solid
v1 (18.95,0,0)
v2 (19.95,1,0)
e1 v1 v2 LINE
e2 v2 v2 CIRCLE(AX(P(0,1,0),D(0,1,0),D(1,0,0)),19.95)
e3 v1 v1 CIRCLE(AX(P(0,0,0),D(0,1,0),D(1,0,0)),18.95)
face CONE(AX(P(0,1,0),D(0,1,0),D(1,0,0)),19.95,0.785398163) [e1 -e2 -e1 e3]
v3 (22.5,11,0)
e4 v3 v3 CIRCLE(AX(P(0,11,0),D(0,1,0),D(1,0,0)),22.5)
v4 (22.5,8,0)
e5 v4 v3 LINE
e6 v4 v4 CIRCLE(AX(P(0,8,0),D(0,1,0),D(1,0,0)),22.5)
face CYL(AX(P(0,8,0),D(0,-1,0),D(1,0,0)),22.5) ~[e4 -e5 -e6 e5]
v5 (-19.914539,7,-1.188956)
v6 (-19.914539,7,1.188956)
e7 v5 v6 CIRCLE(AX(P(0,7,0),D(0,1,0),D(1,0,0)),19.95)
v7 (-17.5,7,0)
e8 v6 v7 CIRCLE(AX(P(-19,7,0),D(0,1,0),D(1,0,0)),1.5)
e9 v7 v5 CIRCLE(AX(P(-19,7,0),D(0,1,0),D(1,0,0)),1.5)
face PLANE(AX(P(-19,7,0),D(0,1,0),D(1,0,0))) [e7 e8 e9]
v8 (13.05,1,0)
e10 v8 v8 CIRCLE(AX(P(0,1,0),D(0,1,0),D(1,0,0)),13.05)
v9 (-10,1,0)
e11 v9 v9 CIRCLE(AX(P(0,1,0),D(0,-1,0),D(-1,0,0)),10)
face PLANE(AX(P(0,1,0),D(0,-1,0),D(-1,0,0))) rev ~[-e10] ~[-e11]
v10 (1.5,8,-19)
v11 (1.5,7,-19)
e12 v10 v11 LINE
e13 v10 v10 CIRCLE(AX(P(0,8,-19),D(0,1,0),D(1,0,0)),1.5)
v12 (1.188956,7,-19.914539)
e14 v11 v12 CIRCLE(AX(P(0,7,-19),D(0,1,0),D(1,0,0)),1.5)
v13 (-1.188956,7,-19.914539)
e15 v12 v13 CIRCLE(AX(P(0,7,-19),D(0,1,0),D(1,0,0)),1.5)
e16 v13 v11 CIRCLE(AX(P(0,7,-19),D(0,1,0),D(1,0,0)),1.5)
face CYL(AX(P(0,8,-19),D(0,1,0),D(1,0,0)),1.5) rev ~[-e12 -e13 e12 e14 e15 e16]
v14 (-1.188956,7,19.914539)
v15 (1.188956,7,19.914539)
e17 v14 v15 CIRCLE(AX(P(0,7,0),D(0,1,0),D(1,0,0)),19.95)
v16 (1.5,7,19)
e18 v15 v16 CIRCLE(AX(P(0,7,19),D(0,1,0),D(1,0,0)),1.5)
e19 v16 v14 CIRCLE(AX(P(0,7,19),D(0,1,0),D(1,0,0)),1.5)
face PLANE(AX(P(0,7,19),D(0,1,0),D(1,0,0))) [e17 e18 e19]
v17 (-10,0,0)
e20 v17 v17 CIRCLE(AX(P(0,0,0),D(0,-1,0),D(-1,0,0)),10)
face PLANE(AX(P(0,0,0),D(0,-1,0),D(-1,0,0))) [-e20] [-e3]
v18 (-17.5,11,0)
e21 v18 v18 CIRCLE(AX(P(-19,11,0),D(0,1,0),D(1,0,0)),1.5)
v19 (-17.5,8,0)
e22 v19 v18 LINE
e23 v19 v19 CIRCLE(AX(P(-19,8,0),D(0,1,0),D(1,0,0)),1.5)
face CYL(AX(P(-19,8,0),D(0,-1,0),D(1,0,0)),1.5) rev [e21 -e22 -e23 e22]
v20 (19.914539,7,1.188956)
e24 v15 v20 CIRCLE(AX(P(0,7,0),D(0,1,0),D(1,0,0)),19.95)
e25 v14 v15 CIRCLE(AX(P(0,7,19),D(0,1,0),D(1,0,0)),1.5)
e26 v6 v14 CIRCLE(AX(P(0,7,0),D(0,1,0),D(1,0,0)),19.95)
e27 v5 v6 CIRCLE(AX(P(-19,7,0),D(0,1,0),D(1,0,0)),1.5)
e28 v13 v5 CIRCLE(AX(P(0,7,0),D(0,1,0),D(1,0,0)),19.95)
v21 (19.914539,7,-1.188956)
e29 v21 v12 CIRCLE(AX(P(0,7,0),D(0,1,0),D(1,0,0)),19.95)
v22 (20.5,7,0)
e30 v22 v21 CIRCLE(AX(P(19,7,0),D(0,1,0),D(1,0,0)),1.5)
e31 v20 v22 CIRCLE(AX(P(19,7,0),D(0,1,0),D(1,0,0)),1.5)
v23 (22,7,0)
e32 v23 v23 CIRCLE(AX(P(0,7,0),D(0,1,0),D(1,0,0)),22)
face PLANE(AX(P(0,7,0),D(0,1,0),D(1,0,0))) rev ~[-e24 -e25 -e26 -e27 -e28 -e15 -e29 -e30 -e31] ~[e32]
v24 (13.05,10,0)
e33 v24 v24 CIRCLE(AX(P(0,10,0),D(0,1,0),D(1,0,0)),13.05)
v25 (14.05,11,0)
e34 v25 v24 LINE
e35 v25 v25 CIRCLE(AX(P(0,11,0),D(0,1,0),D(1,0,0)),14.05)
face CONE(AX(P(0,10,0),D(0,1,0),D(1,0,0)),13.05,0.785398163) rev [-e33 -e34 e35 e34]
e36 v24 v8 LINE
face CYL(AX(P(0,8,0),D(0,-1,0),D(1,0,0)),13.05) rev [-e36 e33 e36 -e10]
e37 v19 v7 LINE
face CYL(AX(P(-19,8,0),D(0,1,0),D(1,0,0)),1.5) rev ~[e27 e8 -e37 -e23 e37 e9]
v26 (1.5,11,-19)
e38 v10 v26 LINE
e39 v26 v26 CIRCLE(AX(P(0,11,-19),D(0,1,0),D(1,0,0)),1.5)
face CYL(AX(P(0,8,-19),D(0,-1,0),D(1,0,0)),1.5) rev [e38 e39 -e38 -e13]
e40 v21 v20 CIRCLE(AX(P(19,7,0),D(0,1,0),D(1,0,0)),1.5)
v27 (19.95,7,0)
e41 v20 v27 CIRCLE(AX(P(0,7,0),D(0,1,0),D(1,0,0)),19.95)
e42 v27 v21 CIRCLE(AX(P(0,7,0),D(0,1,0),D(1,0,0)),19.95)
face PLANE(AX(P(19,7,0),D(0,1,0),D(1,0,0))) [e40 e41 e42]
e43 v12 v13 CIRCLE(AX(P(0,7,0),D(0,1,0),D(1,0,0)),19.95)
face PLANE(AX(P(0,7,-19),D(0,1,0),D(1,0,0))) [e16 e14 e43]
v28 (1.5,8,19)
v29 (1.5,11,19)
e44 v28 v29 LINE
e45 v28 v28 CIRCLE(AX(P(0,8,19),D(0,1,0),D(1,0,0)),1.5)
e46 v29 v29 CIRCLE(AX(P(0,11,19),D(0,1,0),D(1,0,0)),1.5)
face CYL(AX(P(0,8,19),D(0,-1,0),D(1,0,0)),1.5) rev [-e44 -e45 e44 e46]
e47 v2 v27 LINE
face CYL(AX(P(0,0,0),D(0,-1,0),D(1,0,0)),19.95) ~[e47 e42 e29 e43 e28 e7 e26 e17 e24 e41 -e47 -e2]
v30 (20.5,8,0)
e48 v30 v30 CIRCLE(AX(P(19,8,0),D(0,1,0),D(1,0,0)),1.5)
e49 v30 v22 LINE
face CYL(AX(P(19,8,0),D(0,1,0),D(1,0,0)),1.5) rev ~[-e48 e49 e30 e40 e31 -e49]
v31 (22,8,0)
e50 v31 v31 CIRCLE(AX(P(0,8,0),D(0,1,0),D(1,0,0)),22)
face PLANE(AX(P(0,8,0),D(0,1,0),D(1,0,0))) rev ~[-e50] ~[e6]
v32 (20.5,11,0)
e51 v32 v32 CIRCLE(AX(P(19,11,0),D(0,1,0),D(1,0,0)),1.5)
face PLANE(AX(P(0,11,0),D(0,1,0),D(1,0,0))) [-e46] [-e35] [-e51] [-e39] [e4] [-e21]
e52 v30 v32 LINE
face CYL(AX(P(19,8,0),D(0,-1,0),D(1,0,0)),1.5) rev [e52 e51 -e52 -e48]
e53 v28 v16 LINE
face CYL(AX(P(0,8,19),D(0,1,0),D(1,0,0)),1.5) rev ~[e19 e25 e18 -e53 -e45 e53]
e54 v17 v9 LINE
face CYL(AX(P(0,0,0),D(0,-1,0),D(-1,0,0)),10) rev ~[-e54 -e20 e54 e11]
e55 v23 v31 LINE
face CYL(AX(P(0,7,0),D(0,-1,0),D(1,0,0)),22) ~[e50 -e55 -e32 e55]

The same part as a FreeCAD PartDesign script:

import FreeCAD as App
import Part
import Sketcher


def edges_at(feature, points):
    """Names of the edges that pass closest to the given points."""
    edges = feature.Shape.Edges
    near = lambda p: min(range(len(edges)), key=lambda i: edges[i].distToShape(Part.Vertex(*p))[0])
    return sorted({f"Edge{near(p) + 1}" for p in points})

doc = App.newDocument("Part")
params = doc.addObject("Spreadsheet::Sheet", "Params")
for row, (alias, value) in enumerate([
    ("sketch1_diameter", "39.9 mm"),
    ("sketch1_diameter2", "26.1 mm"),
    ("pad1_length", "7 mm"),
    ("sketch2_diameter", "20 mm"),
    ("sketch2_diameter2", "26.1 mm"),
    ("pad2_length", "1 mm"),
    ("sketch3_diameter", "44 mm"),
    ("sketch3_diameter2", "26.1 mm"),
    ("pad3_length", "1 mm"),
    ("sketch4_diameter", "45 mm"),
    ("sketch4_diameter2", "3 mm"),
    ("sketch4_diameter3", "26.1 mm"),
    ("pad4_length", "3 mm"),
    ("chamfer_size", "1 mm"),
    ("sketch5_diameter", "3 mm"),
    ("pocket1_length", "1 mm"),
], start=1):
    params.set(f"A{row}", alias)
    params.set(f"B{row}", "=" + value)
    params.setAlias(f"B{row}", alias)

body = doc.addObject("PartDesign::Body", "Body")

# Sketch on XZ plane
sketch1 = body.newObject("Sketcher::SketchObject", "Sketch")
sketch1.AttachmentSupport = (doc.getObject("XZ_Plane"), [""])
sketch1.MapMode = "FlatFace"
sketch1.addGeometry([
    Part.Circle(App.Vector(0, 0, 0), App.Vector(0, 0, 1), 19.95),
    Part.Circle(App.Vector(0, 0, 0), App.Vector(0, 0, 1), 13.05),
], False)
sketch1.addConstraint([
    Sketcher.Constraint("Coincident", 0, 3, -1, 1),
    Sketcher.Constraint("Coincident", 1, 3, -1, 1),
    Sketcher.Constraint("Diameter", 0, 39.9),
    Sketcher.Constraint("Diameter", 1, 26.1),
])
sketch1.setExpression("Constraints[2]", "Params.sketch1_diameter")
sketch1.setExpression("Constraints[3]", "Params.sketch1_diameter2")
pad1 = body.newObject("PartDesign::Pad", "Pad")
pad1.Profile = sketch1
pad1.setExpression("Length", "Params.pad1_length")
pad1.Reversed = True

# Sketch on XZ plane
sketch2 = body.newObject("Sketcher::SketchObject", "Sketch001")
sketch2.AttachmentSupport = (doc.getObject("XZ_Plane"), [""])
sketch2.MapMode = "FlatFace"
sketch2.addGeometry([
    Part.Circle(App.Vector(0, 0, 0), App.Vector(0, 0, 1), 13.05),
    Part.Circle(App.Vector(0, 0, 0), App.Vector(0, 0, 1), 10),
], False)
sketch2.addConstraint([
    Sketcher.Constraint("Coincident", 0, 3, -1, 1),
    Sketcher.Constraint("Coincident", 1, 3, -1, 1),
    Sketcher.Constraint("Diameter", 1, 20.0),
    Sketcher.Constraint("Diameter", 0, 26.1),
])
sketch2.setExpression("Constraints[2]", "Params.sketch2_diameter")
sketch2.setExpression("Constraints[3]", "Params.sketch2_diameter2")
pad2 = body.newObject("PartDesign::Pad", "Pad001")
pad2.Profile = sketch2
pad2.setExpression("Length", "Params.pad2_length")
pad2.Reversed = True

# Sketch on XZ plane
sketch3 = body.newObject("Sketcher::SketchObject", "Sketch002")
sketch3.AttachmentSupport = (doc.getObject("XZ_Plane"), [""])
sketch3.MapMode = "FlatFace"
sketch3.AttachmentOffset = App.Placement(App.Vector(0, 0, -7), App.Rotation())
sketch3.addGeometry([
    Part.Circle(App.Vector(0, 0, 0), App.Vector(0, 0, 1), 22),
    Part.Circle(App.Vector(0, 0, 0), App.Vector(0, 0, 1), 13.05),
], False)
sketch3.addConstraint([
    Sketcher.Constraint("Coincident", 0, 3, -1, 1),
    Sketcher.Constraint("Coincident", 1, 3, -1, 1),
    Sketcher.Constraint("Diameter", 0, 44.0),
    Sketcher.Constraint("Diameter", 1, 26.1),
])
sketch3.setExpression("Constraints[2]", "Params.sketch3_diameter")
sketch3.setExpression("Constraints[3]", "Params.sketch3_diameter2")
pad3 = body.newObject("PartDesign::Pad", "Pad002")
pad3.Profile = sketch3
pad3.setExpression("Length", "Params.pad3_length")
pad3.Reversed = True

# Sketch on XZ plane
sketch4 = body.newObject("Sketcher::SketchObject", "Sketch003")
sketch4.AttachmentSupport = (doc.getObject("XZ_Plane"), [""])
sketch4.MapMode = "FlatFace"
sketch4.AttachmentOffset = App.Placement(App.Vector(0, 0, -8), App.Rotation())
sketch4.addGeometry([
    Part.Circle(App.Vector(0, 0, 0), App.Vector(0, 0, 1), 22.5),  # 0
    Part.Circle(App.Vector(0, 19, 0), App.Vector(0, 0, 1), 1.5),  # 1
    Part.Circle(App.Vector(-19, 0, 0), App.Vector(0, 0, 1), 1.5),  # 2
    Part.Circle(App.Vector(0, 0, 0), App.Vector(0, 0, 1), 13.05),  # 3
    Part.Circle(App.Vector(19, 0, 0), App.Vector(0, 0, 1), 1.5),  # 4
    Part.Circle(App.Vector(0, -19, 0), App.Vector(0, 0, 1), 1.5),  # 5
], False)
sketch4.addConstraint([
    Sketcher.Constraint("Coincident", 0, 3, -1, 1),
    Sketcher.Constraint("Coincident", 3, 3, -1, 1),
    Sketcher.Constraint("Equal", 1, 2),
    Sketcher.Constraint("Equal", 2, 4),
    Sketcher.Constraint("Equal", 4, 5),
    Sketcher.Constraint("Symmetric", 2, 3, 4, 3, -1, 1),
    Sketcher.Constraint("Symmetric", 1, 3, 5, 3, -1, 1),
    Sketcher.Constraint("PointOnObject", 1, 3, -2),
    Sketcher.Constraint("PointOnObject", 2, 3, -1),
    Sketcher.Constraint("Diameter", 0, 45.0),
    Sketcher.Constraint("Diameter", 1, 3.0),
    Sketcher.Constraint("Diameter", 3, 26.1),
    Sketcher.Constraint("DistanceY", -1, 1, 1, 3, 19.0),
    Sketcher.Constraint("DistanceX", 2, 3, -1, 1, 19.0),
])
sketch4.setExpression("Constraints[9]", "Params.sketch4_diameter")
sketch4.setExpression("Constraints[10]", "Params.sketch4_diameter2")
sketch4.setExpression("Constraints[11]", "Params.sketch4_diameter3")
pad4 = body.newObject("PartDesign::Pad", "Pad003")
pad4.Profile = sketch4
pad4.setExpression("Length", "Params.pad4_length")
pad4.Reversed = True
doc.recompute()

chamfer = body.newObject("PartDesign::Chamfer", "Chamfer")
chamfer.Base = (pad4, edges_at(pad4, [(-19.95, 0, 0), (-13.05, 11, 0)]))
chamfer.setExpression("Size", "Params.chamfer_size")

# Sketch on XZ plane
sketch5 = body.newObject("Sketcher::SketchObject", "Sketch004")
sketch5.AttachmentSupport = (doc.getObject("XZ_Plane"), [""])
sketch5.MapMode = "FlatFace"
sketch5.AttachmentOffset = App.Placement(App.Vector(0, 0, -8), App.Rotation())
sketch5.addGeometry([
    Part.Circle(App.Vector(-19, 0, 0), App.Vector(0, 0, 1), 1.5),
    Part.Circle(App.Vector(0, 19, 0), App.Vector(0, 0, 1), 1.5),
    Part.Circle(App.Vector(19, 0, 0), App.Vector(0, 0, 1), 1.5),
    Part.Circle(App.Vector(0, -19, 0), App.Vector(0, 0, 1), 1.5),
], False)
sketch5.addConstraint([
    Sketcher.Constraint("Equal", 0, 1),
    Sketcher.Constraint("Equal", 1, 2),
    Sketcher.Constraint("Equal", 2, 3),
    Sketcher.Constraint("Symmetric", 0, 3, 2, 3, -1, 1),
    Sketcher.Constraint("Symmetric", 1, 3, 3, 3, -1, 1),
    Sketcher.Constraint("PointOnObject", 0, 3, -1),
    Sketcher.Constraint("PointOnObject", 1, 3, -2),
    Sketcher.Constraint("Diameter", 0, 3.0),
    Sketcher.Constraint("DistanceX", 0, 3, -1, 1, 19.0),
    Sketcher.Constraint("DistanceY", -1, 1, 1, 3, 19.0),
])
sketch5.setExpression("Constraints[7]", "Params.sketch5_diameter")
pocket1 = body.newObject("PartDesign::Pocket", "Pocket")
pocket1.Profile = sketch5
pocket1.setExpression("Length", "Params.pocket1_length")
pocket1.Reversed = True

doc.recompute()
